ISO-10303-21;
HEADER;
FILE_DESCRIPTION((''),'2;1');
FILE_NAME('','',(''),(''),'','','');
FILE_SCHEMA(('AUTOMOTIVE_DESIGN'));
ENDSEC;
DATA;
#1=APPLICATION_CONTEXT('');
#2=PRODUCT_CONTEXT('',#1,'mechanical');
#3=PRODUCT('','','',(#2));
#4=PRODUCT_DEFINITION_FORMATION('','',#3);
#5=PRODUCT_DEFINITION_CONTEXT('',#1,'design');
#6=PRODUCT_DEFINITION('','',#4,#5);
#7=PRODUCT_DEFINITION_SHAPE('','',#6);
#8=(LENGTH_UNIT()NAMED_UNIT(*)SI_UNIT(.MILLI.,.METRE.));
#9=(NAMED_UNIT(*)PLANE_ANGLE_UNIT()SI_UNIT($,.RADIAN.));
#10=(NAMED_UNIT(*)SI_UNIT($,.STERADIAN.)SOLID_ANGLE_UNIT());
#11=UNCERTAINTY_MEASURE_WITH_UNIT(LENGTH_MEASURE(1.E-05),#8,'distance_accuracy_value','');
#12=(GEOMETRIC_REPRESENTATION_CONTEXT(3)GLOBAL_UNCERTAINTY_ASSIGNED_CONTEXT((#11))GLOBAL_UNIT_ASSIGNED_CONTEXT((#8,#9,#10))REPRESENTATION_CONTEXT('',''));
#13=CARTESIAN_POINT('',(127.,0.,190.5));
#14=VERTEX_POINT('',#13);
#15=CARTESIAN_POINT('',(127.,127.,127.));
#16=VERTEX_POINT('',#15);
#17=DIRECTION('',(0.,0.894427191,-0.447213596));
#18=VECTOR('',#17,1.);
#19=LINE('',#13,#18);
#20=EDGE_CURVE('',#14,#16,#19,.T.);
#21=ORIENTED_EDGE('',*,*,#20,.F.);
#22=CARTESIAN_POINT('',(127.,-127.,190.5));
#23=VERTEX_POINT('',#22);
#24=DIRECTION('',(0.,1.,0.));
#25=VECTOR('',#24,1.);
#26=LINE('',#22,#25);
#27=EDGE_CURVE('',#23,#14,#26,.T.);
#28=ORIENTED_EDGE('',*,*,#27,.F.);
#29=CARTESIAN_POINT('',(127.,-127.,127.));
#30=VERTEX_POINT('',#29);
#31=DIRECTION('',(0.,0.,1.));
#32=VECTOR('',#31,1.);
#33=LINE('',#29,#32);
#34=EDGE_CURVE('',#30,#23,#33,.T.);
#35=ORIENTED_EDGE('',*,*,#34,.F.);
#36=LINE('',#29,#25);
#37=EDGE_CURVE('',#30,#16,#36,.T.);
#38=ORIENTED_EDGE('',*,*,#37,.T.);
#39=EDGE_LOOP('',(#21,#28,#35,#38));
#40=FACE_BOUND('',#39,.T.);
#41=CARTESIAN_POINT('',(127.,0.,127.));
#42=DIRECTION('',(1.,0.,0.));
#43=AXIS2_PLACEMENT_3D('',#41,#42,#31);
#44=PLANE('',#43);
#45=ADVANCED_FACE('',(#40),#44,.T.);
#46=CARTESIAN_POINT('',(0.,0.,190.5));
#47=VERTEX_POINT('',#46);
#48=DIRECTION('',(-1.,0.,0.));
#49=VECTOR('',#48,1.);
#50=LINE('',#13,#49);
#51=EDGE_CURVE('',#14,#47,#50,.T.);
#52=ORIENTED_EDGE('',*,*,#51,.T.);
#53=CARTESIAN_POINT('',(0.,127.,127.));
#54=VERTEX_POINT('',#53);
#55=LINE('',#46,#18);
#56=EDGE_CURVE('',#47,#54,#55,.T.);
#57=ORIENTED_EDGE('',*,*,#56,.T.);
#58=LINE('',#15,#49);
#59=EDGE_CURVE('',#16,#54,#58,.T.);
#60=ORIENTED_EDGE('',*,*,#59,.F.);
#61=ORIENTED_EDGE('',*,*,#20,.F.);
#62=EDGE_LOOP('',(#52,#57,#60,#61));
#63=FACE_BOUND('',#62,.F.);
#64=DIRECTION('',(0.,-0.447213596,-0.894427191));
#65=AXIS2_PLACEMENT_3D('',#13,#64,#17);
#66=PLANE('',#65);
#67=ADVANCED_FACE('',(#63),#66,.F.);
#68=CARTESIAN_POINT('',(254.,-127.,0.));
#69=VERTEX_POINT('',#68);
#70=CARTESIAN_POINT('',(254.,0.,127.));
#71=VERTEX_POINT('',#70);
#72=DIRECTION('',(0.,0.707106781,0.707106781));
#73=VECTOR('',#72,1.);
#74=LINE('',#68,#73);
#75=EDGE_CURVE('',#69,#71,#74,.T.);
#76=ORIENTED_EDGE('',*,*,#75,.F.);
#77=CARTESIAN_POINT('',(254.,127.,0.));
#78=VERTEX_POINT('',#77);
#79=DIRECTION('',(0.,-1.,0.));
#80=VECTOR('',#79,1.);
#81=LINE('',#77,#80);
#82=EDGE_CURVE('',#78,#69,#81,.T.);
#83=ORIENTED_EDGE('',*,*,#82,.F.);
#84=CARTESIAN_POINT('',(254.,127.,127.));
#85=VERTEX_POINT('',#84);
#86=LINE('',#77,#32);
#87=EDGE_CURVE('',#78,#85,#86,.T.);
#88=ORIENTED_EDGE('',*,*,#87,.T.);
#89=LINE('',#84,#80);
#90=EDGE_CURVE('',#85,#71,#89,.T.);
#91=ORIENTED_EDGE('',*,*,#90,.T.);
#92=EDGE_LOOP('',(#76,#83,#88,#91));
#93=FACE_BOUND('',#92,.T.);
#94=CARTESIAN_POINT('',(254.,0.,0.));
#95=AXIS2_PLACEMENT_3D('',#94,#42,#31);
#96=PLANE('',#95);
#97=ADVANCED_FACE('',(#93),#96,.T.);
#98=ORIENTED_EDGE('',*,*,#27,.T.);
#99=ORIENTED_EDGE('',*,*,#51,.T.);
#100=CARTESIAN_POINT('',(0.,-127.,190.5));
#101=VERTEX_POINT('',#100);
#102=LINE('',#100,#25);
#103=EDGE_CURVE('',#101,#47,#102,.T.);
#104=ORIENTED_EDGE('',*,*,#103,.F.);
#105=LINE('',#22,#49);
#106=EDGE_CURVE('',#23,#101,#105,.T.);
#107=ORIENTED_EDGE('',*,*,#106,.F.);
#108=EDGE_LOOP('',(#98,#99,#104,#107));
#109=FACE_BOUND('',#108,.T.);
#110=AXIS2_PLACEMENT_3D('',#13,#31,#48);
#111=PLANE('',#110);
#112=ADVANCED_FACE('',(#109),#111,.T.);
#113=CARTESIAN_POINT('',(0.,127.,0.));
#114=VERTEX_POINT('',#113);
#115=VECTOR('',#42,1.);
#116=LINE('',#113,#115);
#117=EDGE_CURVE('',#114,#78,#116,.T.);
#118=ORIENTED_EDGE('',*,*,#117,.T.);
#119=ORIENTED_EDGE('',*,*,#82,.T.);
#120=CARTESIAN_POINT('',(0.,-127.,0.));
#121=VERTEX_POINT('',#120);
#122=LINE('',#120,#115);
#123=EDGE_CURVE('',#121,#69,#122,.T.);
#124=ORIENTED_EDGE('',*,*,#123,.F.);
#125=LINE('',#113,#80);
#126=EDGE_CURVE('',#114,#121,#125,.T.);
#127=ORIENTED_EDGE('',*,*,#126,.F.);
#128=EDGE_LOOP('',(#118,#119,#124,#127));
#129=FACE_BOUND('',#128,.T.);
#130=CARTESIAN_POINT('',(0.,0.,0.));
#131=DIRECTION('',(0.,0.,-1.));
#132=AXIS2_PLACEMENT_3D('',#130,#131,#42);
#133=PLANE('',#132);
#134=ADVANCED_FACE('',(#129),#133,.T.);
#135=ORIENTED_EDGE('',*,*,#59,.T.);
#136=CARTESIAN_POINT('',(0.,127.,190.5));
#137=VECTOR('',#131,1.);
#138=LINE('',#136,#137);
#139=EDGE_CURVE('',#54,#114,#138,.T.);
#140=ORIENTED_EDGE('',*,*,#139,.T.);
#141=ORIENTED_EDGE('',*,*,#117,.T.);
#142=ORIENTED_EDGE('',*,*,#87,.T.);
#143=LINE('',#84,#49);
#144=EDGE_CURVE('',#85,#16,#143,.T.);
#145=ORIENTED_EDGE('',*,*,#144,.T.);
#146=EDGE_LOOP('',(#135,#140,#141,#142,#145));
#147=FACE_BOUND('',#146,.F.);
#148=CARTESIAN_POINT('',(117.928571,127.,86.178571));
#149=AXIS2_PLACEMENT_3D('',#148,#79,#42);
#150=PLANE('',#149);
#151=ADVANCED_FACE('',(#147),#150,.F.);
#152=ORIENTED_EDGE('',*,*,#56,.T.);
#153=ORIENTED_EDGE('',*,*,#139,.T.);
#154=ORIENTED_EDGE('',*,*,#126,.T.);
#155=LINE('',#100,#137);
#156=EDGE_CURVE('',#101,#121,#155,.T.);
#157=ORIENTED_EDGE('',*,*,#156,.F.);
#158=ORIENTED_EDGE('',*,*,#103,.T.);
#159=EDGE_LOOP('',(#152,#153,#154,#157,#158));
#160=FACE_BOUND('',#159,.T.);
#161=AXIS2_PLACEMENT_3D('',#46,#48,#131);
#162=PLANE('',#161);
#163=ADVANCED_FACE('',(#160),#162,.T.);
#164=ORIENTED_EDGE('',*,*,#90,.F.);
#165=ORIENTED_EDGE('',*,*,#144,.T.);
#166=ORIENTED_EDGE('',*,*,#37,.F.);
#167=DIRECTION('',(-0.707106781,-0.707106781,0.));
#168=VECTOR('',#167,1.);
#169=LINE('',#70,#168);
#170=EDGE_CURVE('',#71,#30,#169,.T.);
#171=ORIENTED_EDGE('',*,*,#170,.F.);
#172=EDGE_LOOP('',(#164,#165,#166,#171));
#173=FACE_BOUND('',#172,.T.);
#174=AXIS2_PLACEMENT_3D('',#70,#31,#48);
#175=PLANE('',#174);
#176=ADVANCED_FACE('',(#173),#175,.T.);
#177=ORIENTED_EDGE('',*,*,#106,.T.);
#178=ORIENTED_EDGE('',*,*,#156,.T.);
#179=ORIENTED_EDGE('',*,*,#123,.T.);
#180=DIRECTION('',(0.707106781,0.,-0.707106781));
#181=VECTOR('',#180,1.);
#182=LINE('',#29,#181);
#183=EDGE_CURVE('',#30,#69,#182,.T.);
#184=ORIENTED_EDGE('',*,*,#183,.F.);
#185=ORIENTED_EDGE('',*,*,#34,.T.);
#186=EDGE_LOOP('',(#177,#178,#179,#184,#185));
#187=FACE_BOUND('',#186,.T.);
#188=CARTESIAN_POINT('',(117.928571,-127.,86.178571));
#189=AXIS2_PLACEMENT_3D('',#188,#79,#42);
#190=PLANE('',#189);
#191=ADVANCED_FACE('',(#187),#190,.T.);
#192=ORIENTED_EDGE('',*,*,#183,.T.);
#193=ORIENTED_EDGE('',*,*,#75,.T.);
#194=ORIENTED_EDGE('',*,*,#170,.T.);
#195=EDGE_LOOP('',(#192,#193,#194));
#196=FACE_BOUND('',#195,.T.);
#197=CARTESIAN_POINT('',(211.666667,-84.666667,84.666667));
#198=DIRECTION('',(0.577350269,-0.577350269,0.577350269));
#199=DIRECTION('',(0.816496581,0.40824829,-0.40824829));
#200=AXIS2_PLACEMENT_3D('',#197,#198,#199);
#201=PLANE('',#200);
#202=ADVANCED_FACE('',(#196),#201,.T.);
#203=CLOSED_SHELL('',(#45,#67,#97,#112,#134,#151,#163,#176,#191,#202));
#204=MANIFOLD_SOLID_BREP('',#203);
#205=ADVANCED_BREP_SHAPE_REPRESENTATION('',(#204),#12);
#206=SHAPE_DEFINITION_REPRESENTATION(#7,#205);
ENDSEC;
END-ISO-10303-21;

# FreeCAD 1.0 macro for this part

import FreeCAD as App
import Part
import Sketcher

V = App.Vector
Q = App.Units.Quantity


def add_polygon(sketch, points):
    """Adds a closed chain of lines whose ends are joined by coincident constraints."""
    first, n = sketch.GeometryCount, len(points)
    for a, b in zip(points, points[1:] + points[:1]):
        sketch.addGeometry(Part.LineSegment(App.Vector(*a, 0), App.Vector(*b, 0)), False)
    for i in range(n):
        sketch.addConstraint(Sketcher.Constraint("Coincident", first + i, 2, first + (i + 1) % n, 1))

doc = App.newDocument("Part")
params = doc.addObject("Spreadsheet::Sheet", "Params")
for row, (alias, value) in enumerate([
    ("sketch1_width", "10 in"),
    ("sketch1_height", "7.5 in"),
    ("pad1_length", "10 in"),
    ("sketch2_width", "5 in"),
    ("sketch2_height", "2.5 in"),
    ("pocket1_length", "5 in"),
    ("pocket2_length", "9.72 in"),
], start=1):
    params.set(f"A{row}", alias)
    params.set(f"B{row}", "=" + value)
    params.setAlias(f"B{row}", alias)

body = doc.addObject("PartDesign::Body", "Body")

sketch1 = body.newObject("Sketcher::SketchObject", "Sketch")
sketch1.AttachmentSupport = (doc.getObject("XZ_Plane"), [""])
sketch1.MapMode = "FlatFace"
add_polygon(sketch1, [(0, 190.5), (0, 0), (254, 0), (254, 127), (127, 127), (127, 190.5)])
sketch1.addConstraint([
    Sketcher.Constraint("Vertical", 0),
    Sketcher.Constraint("Horizontal", 1),
    Sketcher.Constraint("Vertical", 2),
    Sketcher.Constraint("Horizontal", 3),
    Sketcher.Constraint("Vertical", 4),
    Sketcher.Constraint("Horizontal", 5),
    Sketcher.Constraint("Coincident", 0, 2, -1, 1),
    Sketcher.Constraint("Equal", 3, 5),
    Sketcher.Constraint("Equal", 5, 2),
    Sketcher.Constraint("DistanceX", 1, 1, 1, 2, Q("10 in")),
    Sketcher.Constraint("DistanceY", 0, 2, 0, 1, Q("7.5 in")),
])
sketch1.setExpression("Constraints[15]", "Params.sketch1_width")
sketch1.setExpression("Constraints[16]", "Params.sketch1_height")
pad1 = body.newObject("PartDesign::Pad", "Pad")
pad1.Profile = sketch1
pad1.setExpression("Length", "Params.pad1_length")
pad1.Midplane = True

sketch2 = body.newObject("Sketcher::SketchObject", "Sketch001")
sketch2.AttachmentSupport = (doc.getObject("YZ_Plane"), [""])
sketch2.MapMode = "FlatFace"
sketch2.AttachmentOffset = App.Placement(V(0, 0, 5 * 25.4), App.Rotation())
add_polygon(sketch2, [(127, 190.5), (0, 190.5), (127, 127)])
sketch2.addConstraint([
    Sketcher.Constraint("Horizontal", 0),
    Sketcher.Constraint("Vertical", 2),
    Sketcher.Constraint("PointOnObject", 0, 2, -2),
    Sketcher.Constraint("DistanceX", 0, 2, 0, 1, Q("5 in")),
    Sketcher.Constraint("DistanceY", 2, 1, 2, 2, Q("2.5 in")),
    Sketcher.Constraint("DistanceY", -1, 1, 1, 2, Q("5 in")),
])
sketch2.setExpression("Constraints[6]", "Params.sketch2_width")
sketch2.setExpression("Constraints[7]", "Params.sketch2_height")
pocket1 = body.newObject("PartDesign::Pocket", "Pocket")
pocket1.Profile = sketch2
pocket1.setExpression("Length", "Params.pocket1_length")

sketch3 = body.newObject("Sketcher::SketchObject", "Sketch002")
sketch3.Placement = App.Placement(V(127, -127, 127), App.Rotation(V(0.816496581, 0.40824829, -0.40824829), V(0, 0.707106781, 0.707106781), V(0.577350269, -0.577350269, 0.577350269), "ZXY"))
add_polygon(sketch3, [(155.542599, 89.802561), (0, 0), (155.542599, -89.802561)])
sketch3.addConstraint([
    Sketcher.Constraint("Vertical", 2),
    Sketcher.Constraint("Coincident", 0, 2, -1, 1),
    Sketcher.Constraint("Equal", 0, 1),
    Sketcher.Constraint("Angle", 0, Q("-150 deg")),
    Sketcher.Constraint("DistanceX", -1, 1, 1, 2, 155.542599),
])
pocket2 = body.newObject("PartDesign::Pocket", "Pocket001")
pocket2.Profile = sketch3
pocket2.setExpression("Length", "Params.pocket2_length")
pocket2.Reversed = True

doc.recompute()
